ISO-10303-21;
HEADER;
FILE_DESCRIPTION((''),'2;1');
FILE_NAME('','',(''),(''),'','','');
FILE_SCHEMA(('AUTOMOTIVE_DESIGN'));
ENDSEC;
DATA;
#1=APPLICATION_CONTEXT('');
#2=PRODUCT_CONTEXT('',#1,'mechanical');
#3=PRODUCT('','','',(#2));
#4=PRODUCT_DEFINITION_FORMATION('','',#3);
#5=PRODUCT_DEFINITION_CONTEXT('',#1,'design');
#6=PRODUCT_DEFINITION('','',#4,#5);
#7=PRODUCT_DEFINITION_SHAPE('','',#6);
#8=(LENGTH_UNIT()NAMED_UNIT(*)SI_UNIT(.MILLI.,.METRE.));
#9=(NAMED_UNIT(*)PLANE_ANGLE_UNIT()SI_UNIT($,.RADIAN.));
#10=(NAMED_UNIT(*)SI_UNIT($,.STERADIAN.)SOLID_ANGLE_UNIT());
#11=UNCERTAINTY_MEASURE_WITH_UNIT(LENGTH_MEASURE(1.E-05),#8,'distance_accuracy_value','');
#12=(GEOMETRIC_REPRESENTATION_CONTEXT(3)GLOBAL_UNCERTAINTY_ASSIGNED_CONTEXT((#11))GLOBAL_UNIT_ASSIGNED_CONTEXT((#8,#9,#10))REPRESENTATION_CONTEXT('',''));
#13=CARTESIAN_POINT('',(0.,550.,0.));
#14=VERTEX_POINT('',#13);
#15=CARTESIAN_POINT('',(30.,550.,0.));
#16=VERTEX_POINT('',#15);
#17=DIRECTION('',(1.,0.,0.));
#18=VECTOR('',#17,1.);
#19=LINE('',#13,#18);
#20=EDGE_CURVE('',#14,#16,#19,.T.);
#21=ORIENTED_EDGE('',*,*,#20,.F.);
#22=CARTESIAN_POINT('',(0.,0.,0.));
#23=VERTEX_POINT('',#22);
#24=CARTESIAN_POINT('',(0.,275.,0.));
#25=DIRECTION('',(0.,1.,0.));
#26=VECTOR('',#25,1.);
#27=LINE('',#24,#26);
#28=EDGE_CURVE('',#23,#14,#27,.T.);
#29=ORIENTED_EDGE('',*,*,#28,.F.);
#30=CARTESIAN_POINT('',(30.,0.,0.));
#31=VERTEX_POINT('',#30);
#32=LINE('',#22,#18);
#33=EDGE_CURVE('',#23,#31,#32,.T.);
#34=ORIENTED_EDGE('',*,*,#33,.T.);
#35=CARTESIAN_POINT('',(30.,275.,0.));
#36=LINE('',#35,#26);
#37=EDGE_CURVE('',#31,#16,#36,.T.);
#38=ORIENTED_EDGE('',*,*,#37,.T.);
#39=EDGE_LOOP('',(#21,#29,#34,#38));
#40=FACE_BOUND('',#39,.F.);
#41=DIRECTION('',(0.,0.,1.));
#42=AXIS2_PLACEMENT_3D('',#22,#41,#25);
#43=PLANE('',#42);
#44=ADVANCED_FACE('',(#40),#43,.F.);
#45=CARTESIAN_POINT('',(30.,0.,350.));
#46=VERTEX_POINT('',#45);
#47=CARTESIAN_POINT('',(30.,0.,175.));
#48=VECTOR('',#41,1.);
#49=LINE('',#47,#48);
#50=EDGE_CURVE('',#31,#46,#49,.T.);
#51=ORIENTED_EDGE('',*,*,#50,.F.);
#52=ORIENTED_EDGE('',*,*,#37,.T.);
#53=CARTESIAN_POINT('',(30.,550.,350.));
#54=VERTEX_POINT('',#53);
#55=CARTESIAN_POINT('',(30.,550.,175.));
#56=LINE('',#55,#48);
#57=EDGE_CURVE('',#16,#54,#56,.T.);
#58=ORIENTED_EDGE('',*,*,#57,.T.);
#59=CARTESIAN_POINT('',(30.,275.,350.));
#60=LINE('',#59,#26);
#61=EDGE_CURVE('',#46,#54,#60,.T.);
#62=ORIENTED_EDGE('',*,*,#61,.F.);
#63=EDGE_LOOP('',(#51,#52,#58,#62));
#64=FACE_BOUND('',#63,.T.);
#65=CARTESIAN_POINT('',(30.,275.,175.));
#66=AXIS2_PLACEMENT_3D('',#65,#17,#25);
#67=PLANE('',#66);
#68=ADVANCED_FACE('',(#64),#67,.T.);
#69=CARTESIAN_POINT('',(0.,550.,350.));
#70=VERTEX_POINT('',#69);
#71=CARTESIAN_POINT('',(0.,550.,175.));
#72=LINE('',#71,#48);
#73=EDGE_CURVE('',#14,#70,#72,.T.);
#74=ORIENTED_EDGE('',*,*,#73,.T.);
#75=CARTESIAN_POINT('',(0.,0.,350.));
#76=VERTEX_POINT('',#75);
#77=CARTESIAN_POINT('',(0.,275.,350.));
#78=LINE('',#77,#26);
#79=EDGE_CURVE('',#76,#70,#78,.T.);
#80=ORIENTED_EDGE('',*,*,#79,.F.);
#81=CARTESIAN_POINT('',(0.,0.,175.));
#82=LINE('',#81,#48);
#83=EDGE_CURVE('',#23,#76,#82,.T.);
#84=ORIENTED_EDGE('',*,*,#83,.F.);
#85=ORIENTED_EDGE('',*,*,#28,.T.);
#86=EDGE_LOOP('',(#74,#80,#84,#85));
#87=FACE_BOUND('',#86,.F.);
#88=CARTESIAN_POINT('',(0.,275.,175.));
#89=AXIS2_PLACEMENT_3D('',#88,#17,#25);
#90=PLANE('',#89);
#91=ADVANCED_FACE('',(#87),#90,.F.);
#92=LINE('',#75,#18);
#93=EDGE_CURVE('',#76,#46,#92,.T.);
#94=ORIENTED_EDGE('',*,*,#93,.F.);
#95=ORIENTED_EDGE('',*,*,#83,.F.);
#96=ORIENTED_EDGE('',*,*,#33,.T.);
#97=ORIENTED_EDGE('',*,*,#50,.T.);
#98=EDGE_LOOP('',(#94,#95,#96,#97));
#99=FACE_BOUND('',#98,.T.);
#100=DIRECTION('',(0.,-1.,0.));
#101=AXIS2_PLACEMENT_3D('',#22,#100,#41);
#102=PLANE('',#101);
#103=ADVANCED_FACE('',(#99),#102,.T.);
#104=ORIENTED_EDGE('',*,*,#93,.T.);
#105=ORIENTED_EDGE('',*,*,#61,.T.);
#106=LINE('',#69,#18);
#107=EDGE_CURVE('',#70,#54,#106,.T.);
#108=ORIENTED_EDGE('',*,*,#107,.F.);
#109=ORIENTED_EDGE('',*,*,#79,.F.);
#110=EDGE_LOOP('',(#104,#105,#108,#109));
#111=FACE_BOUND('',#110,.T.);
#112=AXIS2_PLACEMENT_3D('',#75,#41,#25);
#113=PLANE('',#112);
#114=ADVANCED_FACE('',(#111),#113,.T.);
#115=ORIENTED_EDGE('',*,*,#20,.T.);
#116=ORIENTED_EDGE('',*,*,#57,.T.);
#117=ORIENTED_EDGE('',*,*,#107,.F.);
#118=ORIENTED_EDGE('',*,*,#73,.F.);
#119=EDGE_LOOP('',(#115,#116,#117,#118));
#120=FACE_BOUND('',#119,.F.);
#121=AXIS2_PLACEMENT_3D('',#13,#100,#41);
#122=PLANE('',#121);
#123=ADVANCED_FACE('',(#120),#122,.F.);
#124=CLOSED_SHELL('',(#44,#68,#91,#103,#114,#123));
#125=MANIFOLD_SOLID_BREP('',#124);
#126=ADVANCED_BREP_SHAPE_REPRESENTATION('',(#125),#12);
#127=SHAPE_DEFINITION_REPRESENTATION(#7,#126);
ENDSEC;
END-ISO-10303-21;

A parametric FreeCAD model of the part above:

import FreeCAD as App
import Part
import Sketcher

V = App.Vector


def add_polygon(sketch, points):
    """Adds a closed chain of lines whose ends are joined by coincident constraints."""
    first, n = sketch.GeometryCount, len(points)
    for a, b in zip(points, points[1:] + points[:1]):
        sketch.addGeometry(Part.LineSegment(App.Vector(*a, 0), App.Vector(*b, 0)), False)
    for i in range(n):
        sketch.addConstraint(Sketcher.Constraint("Coincident", first + i, 2, first + (i + 1) % n, 1))

doc = App.newDocument("Part")
body = doc.addObject("PartDesign::Body", "Body")

sketch1 = body.newObject("Sketcher::SketchObject", "Sketch")
sketch1.AttachmentSupport = (doc.getObject("YZ_Plane"), [""])
sketch1.MapMode = "FlatFace"
add_polygon(sketch1, [(0, 350), (0, 0), (550, 0), (550, 350)])
sketch1.addConstraint([
    Sketcher.Constraint("Vertical", 0),
    Sketcher.Constraint("Horizontal", 1),
    Sketcher.Constraint("Vertical", 2),
    Sketcher.Constraint("Horizontal", 3),
    Sketcher.Constraint("Coincident", 0, 2, -1, 1),
    Sketcher.Constraint("DistanceX", 1, 1, 1, 2, 550.0),
    Sketcher.Constraint("DistanceY", 0, 2, 0, 1, 350.0),
])
pad1 = body.newObject("PartDesign::Pad", "Pad")
pad1.Profile = sketch1
pad1.Length = 30

doc.recompute()
